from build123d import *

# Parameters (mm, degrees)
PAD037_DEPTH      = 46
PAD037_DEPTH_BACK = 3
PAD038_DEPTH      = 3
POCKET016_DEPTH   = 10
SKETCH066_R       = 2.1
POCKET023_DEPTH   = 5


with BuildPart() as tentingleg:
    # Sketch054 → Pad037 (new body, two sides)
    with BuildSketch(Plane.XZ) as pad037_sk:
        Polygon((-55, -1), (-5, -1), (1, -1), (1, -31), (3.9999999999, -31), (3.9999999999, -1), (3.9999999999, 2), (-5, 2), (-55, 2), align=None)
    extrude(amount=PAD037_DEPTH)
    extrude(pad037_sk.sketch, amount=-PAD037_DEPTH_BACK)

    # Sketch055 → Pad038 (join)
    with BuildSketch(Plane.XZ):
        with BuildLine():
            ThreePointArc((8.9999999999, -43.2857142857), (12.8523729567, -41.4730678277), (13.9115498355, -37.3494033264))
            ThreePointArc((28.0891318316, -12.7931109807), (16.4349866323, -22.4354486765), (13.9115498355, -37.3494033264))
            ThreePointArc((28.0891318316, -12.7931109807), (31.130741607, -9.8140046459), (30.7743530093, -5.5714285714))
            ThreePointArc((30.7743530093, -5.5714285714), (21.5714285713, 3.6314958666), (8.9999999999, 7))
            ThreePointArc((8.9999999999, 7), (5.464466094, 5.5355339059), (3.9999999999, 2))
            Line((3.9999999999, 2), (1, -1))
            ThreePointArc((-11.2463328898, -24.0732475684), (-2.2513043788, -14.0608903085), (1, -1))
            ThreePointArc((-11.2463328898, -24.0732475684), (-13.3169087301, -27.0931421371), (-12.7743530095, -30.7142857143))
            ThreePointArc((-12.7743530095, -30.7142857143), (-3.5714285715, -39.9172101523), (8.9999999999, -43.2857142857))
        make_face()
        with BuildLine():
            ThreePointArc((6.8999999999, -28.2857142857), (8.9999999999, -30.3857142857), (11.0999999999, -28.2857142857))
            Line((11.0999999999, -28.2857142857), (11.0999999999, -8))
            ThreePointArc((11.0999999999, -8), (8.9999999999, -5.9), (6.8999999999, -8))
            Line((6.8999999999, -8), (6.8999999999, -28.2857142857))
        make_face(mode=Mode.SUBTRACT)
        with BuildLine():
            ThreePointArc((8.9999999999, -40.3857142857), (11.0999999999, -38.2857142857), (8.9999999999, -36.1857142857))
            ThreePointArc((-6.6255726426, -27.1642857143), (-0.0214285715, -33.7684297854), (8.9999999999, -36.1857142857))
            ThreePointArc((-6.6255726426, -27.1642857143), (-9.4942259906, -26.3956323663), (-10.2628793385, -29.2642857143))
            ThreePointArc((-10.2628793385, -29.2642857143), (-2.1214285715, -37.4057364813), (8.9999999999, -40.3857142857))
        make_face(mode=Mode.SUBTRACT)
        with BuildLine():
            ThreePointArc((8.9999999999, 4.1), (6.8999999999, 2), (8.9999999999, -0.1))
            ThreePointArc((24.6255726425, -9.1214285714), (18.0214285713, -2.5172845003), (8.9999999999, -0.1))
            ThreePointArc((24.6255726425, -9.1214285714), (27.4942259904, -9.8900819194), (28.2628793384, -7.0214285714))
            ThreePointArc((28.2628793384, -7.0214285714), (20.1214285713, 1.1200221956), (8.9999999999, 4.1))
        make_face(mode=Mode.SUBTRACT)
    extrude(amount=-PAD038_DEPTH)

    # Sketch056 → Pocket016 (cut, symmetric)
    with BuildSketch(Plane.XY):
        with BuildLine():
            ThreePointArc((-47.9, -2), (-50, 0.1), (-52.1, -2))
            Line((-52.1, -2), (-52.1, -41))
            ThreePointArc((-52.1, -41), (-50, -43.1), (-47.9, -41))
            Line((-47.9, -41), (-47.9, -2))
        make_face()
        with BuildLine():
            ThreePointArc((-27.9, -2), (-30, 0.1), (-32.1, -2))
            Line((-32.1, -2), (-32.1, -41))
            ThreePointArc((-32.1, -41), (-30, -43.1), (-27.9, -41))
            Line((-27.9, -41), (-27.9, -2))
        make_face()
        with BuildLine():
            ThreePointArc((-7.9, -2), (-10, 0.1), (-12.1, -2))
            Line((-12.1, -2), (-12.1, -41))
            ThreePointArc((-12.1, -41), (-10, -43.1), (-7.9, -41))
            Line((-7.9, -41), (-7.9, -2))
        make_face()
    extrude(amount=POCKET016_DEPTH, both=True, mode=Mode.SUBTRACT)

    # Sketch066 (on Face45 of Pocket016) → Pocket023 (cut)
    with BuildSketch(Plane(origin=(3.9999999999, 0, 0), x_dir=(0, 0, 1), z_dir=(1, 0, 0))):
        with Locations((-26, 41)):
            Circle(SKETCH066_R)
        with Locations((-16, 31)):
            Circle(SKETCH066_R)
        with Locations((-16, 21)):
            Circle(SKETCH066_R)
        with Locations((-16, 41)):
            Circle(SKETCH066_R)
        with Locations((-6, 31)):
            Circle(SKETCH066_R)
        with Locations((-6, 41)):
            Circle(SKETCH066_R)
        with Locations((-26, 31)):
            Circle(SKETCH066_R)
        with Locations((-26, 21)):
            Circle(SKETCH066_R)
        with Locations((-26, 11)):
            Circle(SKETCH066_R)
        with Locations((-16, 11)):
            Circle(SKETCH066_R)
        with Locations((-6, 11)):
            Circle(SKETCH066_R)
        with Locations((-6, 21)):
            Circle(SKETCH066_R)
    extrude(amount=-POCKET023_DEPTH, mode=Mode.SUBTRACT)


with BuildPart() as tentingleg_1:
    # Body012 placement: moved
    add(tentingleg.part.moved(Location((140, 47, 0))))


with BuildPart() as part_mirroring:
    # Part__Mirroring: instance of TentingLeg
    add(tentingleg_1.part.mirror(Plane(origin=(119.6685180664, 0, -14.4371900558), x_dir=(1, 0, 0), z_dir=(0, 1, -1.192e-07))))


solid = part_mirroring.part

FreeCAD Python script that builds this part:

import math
import FreeCAD as App
import Part
import Sketcher

V = App.Vector
Q = App.Units.Quantity


def add_polygon(sketch, points):
    """Adds a closed chain of lines whose ends are joined by coincident constraints."""
    first, n = sketch.GeometryCount, len(points)
    for a, b in zip(points, points[1:] + points[:1]):
        sketch.addGeometry(Part.LineSegment(App.Vector(*a, 0), App.Vector(*b, 0)), False)
    for i in range(n):
        sketch.addConstraint(Sketcher.Constraint("Coincident", first + i, 2, first + (i + 1) % n, 1))

doc = App.newDocument("Part")
body = doc.addObject("PartDesign::Body", "Body")

sketch1 = body.newObject("Sketcher::SketchObject", "Sketch")
sketch1.AttachmentSupport = (doc.getObject("XZ_Plane"), [""])
sketch1.MapMode = "FlatFace"
add_polygon(sketch1, [(-55, -1), (1, -1), (1, -31), (4, -31), (4, 2), (-55, 2)])
sketch1.addConstraint([
    Sketcher.Constraint("Horizontal", 0),
    Sketcher.Constraint("Vertical", 1),
    Sketcher.Constraint("Horizontal", 2),
    Sketcher.Constraint("Vertical", 3),
    Sketcher.Constraint("Horizontal", 4),
    Sketcher.Constraint("Vertical", 5),
    Sketcher.Constraint("Equal", 2, 5),
    Sketcher.Constraint("DistanceX", 0, 1, 0, 2, 56.0),
    Sketcher.Constraint("DistanceX", 2, 1, 2, 2, 3.0),
    Sketcher.Constraint("DistanceY", 1, 2, 1, 1, 30.0),
    Sketcher.Constraint("DistanceX", -1, 1, 0, 2, 1.0),
    Sketcher.Constraint("DistanceY", 0, 2, -1, 1, 1.0),
])
pad1 = body.newObject("PartDesign::Pad", "Pad")
pad1.Profile = sketch1
pad1.Type = "TwoLengths"
pad1.Length = 46
pad1.Length2 = 3

sketch2 = body.newObject("Sketcher::SketchObject", "Sketch001")
sketch2.AttachmentSupport = (doc.getObject("XZ_Plane"), [""])
sketch2.MapMode = "FlatFace"
sketch2.addGeometry([
    Part.ArcOfCircle(Part.Circle(V(9, -38.3, 0), V(0, 0, 1), 5), math.radians(-90), math.radians(11)),
    Part.ArcOfCircle(Part.Circle(V(35.2, -33.3, 0), V(0, 0, 1), 21.7), math.radians(109), math.radians(191)),
    Part.ArcOfCircle(Part.Circle(V(26.4, -8.1, 0), V(0, 0, 1), 5), math.radians(-71), math.radians(30)),
    Part.ArcOfCircle(Part.Circle(V(9, -18.1, 0), V(0, 0, 1), 25.1), math.radians(30), math.radians(90)),
    Part.ArcOfCircle(Part.Circle(V(9, 2, 0), V(0, 0, 1), 5), math.radians(90), math.radians(180)),
    Part.LineSegment(V(4, 2, 0), V(1, -1, 0)),
    Part.ArcOfCircle(Part.Circle(V(-26.9, -1, 0), V(0, 0, 1), 27.9), math.radians(-56), math.radians(0)),
    Part.ArcOfCircle(Part.Circle(V(-8.4, -28.2, 0), V(0, 0, 1), 5), math.radians(124), math.radians(210)),
    Part.ArcOfCircle(Part.Circle(V(9, -18.1, 0), V(0, 0, 1), 25.1), math.radians(-150), math.radians(-90)),
    Part.ArcOfCircle(Part.Circle(V(9, -38.3, 0), V(0, 0, 1), 2.1), math.radians(-90), math.radians(90)),
    Part.ArcOfCircle(Part.Circle(V(9, -18.1, 0), V(0, 0, 1), 22.2), math.radians(-150), math.radians(-90)),
    Part.ArcOfCircle(Part.Circle(V(-8.4, -28.2, 0), V(0, 0, 1), 2.1), math.radians(30), math.radians(210)),
    Part.ArcOfCircle(Part.Circle(V(9, -18.1, 0), V(0, 0, 1), 18), math.radians(-150), math.radians(-90)),
    Part.ArcOfCircle(Part.Circle(V(9, -28.3, 0), V(0, 0, 1), 2.1), math.radians(180), math.radians(360)),
    Part.LineSegment(V(6.9, -28.3, 0), V(6.9, -8, 0)),
    Part.ArcOfCircle(Part.Circle(V(9, -8, 0), V(0, 0, 1), 2.1), math.radians(0), math.radians(180)),
    Part.LineSegment(V(11.1, -8, 0), V(11.1, -28.3, 0)),
    Part.ArcOfCircle(Part.Circle(V(9, 2, 0), V(0, 0, 1), 2.1), math.radians(90), math.radians(270)),
    Part.ArcOfCircle(Part.Circle(V(9, -18.1, 0), V(0, 0, 1), 22.2), math.radians(30), math.radians(90)),
    Part.ArcOfCircle(Part.Circle(V(26.4, -8.1, 0), V(0, 0, 1), 2.1), math.radians(-150), math.radians(30)),
    Part.ArcOfCircle(Part.Circle(V(9, -18.1, 0), V(0, 0, 1), 18), math.radians(30), math.radians(90)),
], False)
sketch2.addConstraint([
    Sketcher.Constraint("Tangent", 0, 2, 1, 2),
    Sketcher.Constraint("Tangent", 1, 1, 2, 1),
    Sketcher.Constraint("Tangent", 2, 2, 3, 1),
    Sketcher.Constraint("Tangent", 3, 2, 4, 1),
    Sketcher.Constraint("Coincident", 4, 2, 5, 1),
    Sketcher.Constraint("Coincident", 5, 2, 6, 2),
    Sketcher.Constraint("Tangent", 6, 1, 7, 1),
    Sketcher.Constraint("Tangent", 7, 2, 8, 1),
    Sketcher.Constraint("Tangent", 8, 2, 0, 1),
    Sketcher.Constraint("Tangent", 9, 1, 10, 2),
    Sketcher.Constraint("Tangent", 10, 1, 11, 2),
    Sketcher.Constraint("Tangent", 11, 1, 12, 1),
    Sketcher.Constraint("Tangent", 12, 2, 9, 2),
    Sketcher.Constraint("Tangent", 13, 1, 14, 1),
    Sketcher.Constraint("Tangent", 14, 2, 15, 2),
    Sketcher.Constraint("Tangent", 15, 1, 16, 1),
    Sketcher.Constraint("Tangent", 16, 2, 13, 2),
    Sketcher.Constraint("Tangent", 17, 1, 18, 2),
    Sketcher.Constraint("Tangent", 18, 1, 19, 2),
    Sketcher.Constraint("Tangent", 19, 1, 20, 1),
    Sketcher.Constraint("Tangent", 20, 2, 17, 2),
    Sketcher.Constraint("Vertical", 14),
    Sketcher.Constraint("Vertical", 16),
    Sketcher.Constraint("Coincident", 8, 3, 3, 3),
    Sketcher.Constraint("Coincident", 9, 3, 0, 3),
    Sketcher.Constraint("Coincident", 10, 3, 3, 3),
    Sketcher.Constraint("Coincident", 11, 3, 7, 3),
    Sketcher.Constraint("Coincident", 12, 3, 3, 3),
    Sketcher.Constraint("Coincident", 17, 3, 4, 3),
    Sketcher.Constraint("Coincident", 18, 3, 3, 3),
    Sketcher.Constraint("Coincident", 19, 3, 2, 3),
    Sketcher.Constraint("Coincident", 20, 3, 3, 3),
    Sketcher.Constraint("Equal", 0, 2),
    Sketcher.Constraint("Equal", 3, 8),
    Sketcher.Constraint("Equal", 11, 13),
    Sketcher.Constraint("Equal", 15, 17),
    Sketcher.Constraint("Horizontal", 17, 3, 4, 2),
    Sketcher.Constraint("Horizontal", 6, 3, 5, 2),
    Sketcher.Constraint("Vertical", 0, 3, 3, 3),
    Sketcher.Constraint("Vertical", 3, 3, 4, 3),
    Sketcher.Constraint("Vertical", 12, 3, 13, 3),
    Sketcher.Constraint("Radius", 0, 5.0),
    Sketcher.Constraint("Radius", 9, 2.1),
    Sketcher.Constraint("Angle", 5, Q("-135 deg")),
    Sketcher.Constraint("DistanceX", -1, 1, 0, 3, 9.0),
    Sketcher.Constraint("DistanceY", -1, 1, 4, 3, 2.0),
    Sketcher.Constraint("DistanceY", 6, 3, -1, 1, 1.0),
    Sketcher.Constraint("DistanceY", 15, 3, -1, 1, 8.0),
    Sketcher.Constraint("DistanceY", 0, 3, 1, 3, 5.0),
    Sketcher.Constraint("DistanceY", 0, 3, 13, 3, 10.0),
    Sketcher.Constraint("DistanceY", 2, 3, 2, 2, 2.5),
    Sketcher.Constraint("DistanceY", 7, 2, 7, 3, 2.5),
    Sketcher.Constraint("Radius", 1, 21.700531),
])
pad2 = body.newObject("PartDesign::Pad", "Pad001")
pad2.Profile = sketch2
pad2.Length = 3
pad2.Reversed = True

sketch3 = body.newObject("Sketcher::SketchObject", "Sketch002")
sketch3.AttachmentSupport = (doc.getObject("XY_Plane"), [""])
sketch3.MapMode = "FlatFace"
sketch3.addGeometry([
    Part.ArcOfCircle(Part.Circle(V(-50, -2, 0), V(0, 0, 1), 2.1), math.radians(0), math.radians(180)),
    Part.LineSegment(V(-52.1, -2, 0), V(-52.1, -41, 0)),
    Part.ArcOfCircle(Part.Circle(V(-50, -41, 0), V(0, 0, 1), 2.1), math.radians(180), math.radians(360)),
    Part.LineSegment(V(-47.9, -41, 0), V(-47.9, -2, 0)),
    Part.ArcOfCircle(Part.Circle(V(-30, -2, 0), V(0, 0, 1), 2.1), math.radians(0), math.radians(180)),
    Part.LineSegment(V(-32.1, -2, 0), V(-32.1, -41, 0)),
    Part.ArcOfCircle(Part.Circle(V(-30, -41, 0), V(0, 0, 1), 2.1), math.radians(180), math.radians(360)),
    Part.LineSegment(V(-27.9, -41, 0), V(-27.9, -2, 0)),
    Part.ArcOfCircle(Part.Circle(V(-10, -2, 0), V(0, 0, 1), 2.1), math.radians(0), math.radians(180)),
    Part.LineSegment(V(-12.1, -2, 0), V(-12.1, -41, 0)),
    Part.ArcOfCircle(Part.Circle(V(-10, -41, 0), V(0, 0, 1), 2.1), math.radians(180), math.radians(360)),
    Part.LineSegment(V(-7.9, -41, 0), V(-7.9, -2, 0)),
], False)
sketch3.addConstraint([
    Sketcher.Constraint("Tangent", 0, 2, 1, 1),
    Sketcher.Constraint("Tangent", 1, 2, 2, 1),
    Sketcher.Constraint("Tangent", 2, 2, 3, 1),
    Sketcher.Constraint("Tangent", 3, 2, 0, 1),
    Sketcher.Constraint("Tangent", 4, 2, 5, 1),
    Sketcher.Constraint("Tangent", 5, 2, 6, 1),
    Sketcher.Constraint("Tangent", 6, 2, 7, 1),
    Sketcher.Constraint("Tangent", 7, 2, 4, 1),
    Sketcher.Constraint("Tangent", 8, 2, 9, 1),
    Sketcher.Constraint("Tangent", 9, 2, 10, 1),
    Sketcher.Constraint("Tangent", 10, 2, 11, 1),
    Sketcher.Constraint("Tangent", 11, 2, 8, 1),
    Sketcher.Constraint("Vertical", 1),
    Sketcher.Constraint("Vertical", 3),
    Sketcher.Constraint("Vertical", 5),
    Sketcher.Constraint("Vertical", 7),
    Sketcher.Constraint("Vertical", 9),
    Sketcher.Constraint("Vertical", 11),
    Sketcher.Constraint("Equal", 2, 4),
    Sketcher.Constraint("Equal", 6, 8),
    Sketcher.Constraint("Horizontal", 0, 3, 4, 3),
    Sketcher.Constraint("Horizontal", 2, 3, 6, 3),
    Sketcher.Constraint("Horizontal", 4, 3, 8, 3),
    Sketcher.Constraint("Horizontal", 6, 3, 10, 3),
    Sketcher.Constraint("Radius", 0, 2.1),
    Sketcher.Constraint("DistanceY", 1, 2, 1, 1, 39.0),
    Sketcher.Constraint("DistanceX", 0, 3, -1, 1, 50.0),
    Sketcher.Constraint("DistanceY", 0, 3, -1, 1, 2.0),
    Sketcher.Constraint("DistanceX", 4, 3, -1, 1, 30.0),
    Sketcher.Constraint("DistanceX", 8, 3, -1, 1, 10.0),
])
pocket1 = body.newObject("PartDesign::Pocket", "Pocket")
pocket1.Profile = sketch3
pocket1.Length = 20
pocket1.Midplane = True

sketch4 = body.newObject("Sketcher::SketchObject", "Sketch003")
sketch4.AttachmentSupport = (doc.getObject("YZ_Plane"), [""])
sketch4.MapMode = "FlatFace"
sketch4.AttachmentOffset = App.Placement(V(0, 0, 4), App.Rotation())
sketch4.addGeometry([
    Part.Circle(V(-41, -26, 0), V(0, 0, 1), 2.1),
    Part.Circle(V(-31, -16, 0), V(0, 0, 1), 2.1),
    Part.Circle(V(-21, -16, 0), V(0, 0, 1), 2.1),
    Part.Circle(V(-41, -16, 0), V(0, 0, 1), 2.1),
    Part.Circle(V(-31, -6, 0), V(0, 0, 1), 2.1),
    Part.Circle(V(-41, -6, 0), V(0, 0, 1), 2.1),
    Part.Circle(V(-31, -26, 0), V(0, 0, 1), 2.1),
    Part.Circle(V(-21, -26, 0), V(0, 0, 1), 2.1),
    Part.Circle(V(-11, -26, 0), V(0, 0, 1), 2.1),
    Part.Circle(V(-11, -16, 0), V(0, 0, 1), 2.1),
    Part.Circle(V(-11, -6, 0), V(0, 0, 1), 2.1),
    Part.Circle(V(-21, -6, 0), V(0, 0, 1), 2.1),
], False)
sketch4.addConstraint([
    Sketcher.Constraint("Equal", 0, 1),
    Sketcher.Constraint("Equal", 1, 2),
    Sketcher.Constraint("Equal", 2, 3),
    Sketcher.Constraint("Equal", 3, 4),
    Sketcher.Constraint("Equal", 4, 5),
    Sketcher.Constraint("Equal", 5, 6),
    Sketcher.Constraint("Equal", 6, 7),
    Sketcher.Constraint("Equal", 7, 8),
    Sketcher.Constraint("Equal", 8, 9),
    Sketcher.Constraint("Equal", 9, 10),
    Sketcher.Constraint("Equal", 10, 11),
    Sketcher.Constraint("Horizontal", 1, 3, 2, 3),
    Sketcher.Constraint("Horizontal", 2, 3, 3, 3),
    Sketcher.Constraint("Horizontal", 4, 3, 5, 3),
    Sketcher.Constraint("Horizontal", 0, 3, 6, 3),
    Sketcher.Constraint("Horizontal", 6, 3, 7, 3),
    Sketcher.Constraint("Horizontal", 7, 3, 8, 3),
    Sketcher.Constraint("Horizontal", 3, 3, 9, 3),
    Sketcher.Constraint("Horizontal", 5, 3, 10, 3),
    Sketcher.Constraint("Horizontal", 10, 3, 11, 3),
    Sketcher.Constraint("Vertical", 0, 3, 3, 3),
    Sketcher.Constraint("Vertical", 1, 3, 4, 3),
    Sketcher.Constraint("Vertical", 3, 3, 5, 3),
    Sketcher.Constraint("Vertical", 4, 3, 6, 3),
    Sketcher.Constraint("Vertical", 2, 3, 7, 3),
    Sketcher.Constraint("Vertical", 8, 3, 9, 3),
    Sketcher.Constraint("Vertical", 9, 3, 10, 3),
    Sketcher.Constraint("Vertical", 7, 3, 11, 3),
    Sketcher.Constraint("Diameter", 0, 4.2),
    Sketcher.Constraint("DistanceX", 0, 3, -1, 1, 41.0),
    Sketcher.Constraint("DistanceY", 0, 3, -1, 1, 26.0),
    Sketcher.Constraint("DistanceX", 1, 3, -1, 1, 31.0),
    Sketcher.Constraint("DistanceY", 1, 3, -1, 1, 16.0),
    Sketcher.Constraint("DistanceX", 2, 3, -1, 1, 21.0),
    Sketcher.Constraint("DistanceY", 4, 3, -1, 1, 6.0),
    Sketcher.Constraint("DistanceX", 8, 3, -1, 1, 11.0),
])
pocket2 = body.newObject("PartDesign::Pocket", "Pocket001")
pocket2.Profile = sketch4
pocket2.Length = 5
body2 = doc.addObject("PartDesign::Body", "Body001")
doc.recompute()

body.Placement = App.Placement(V(140, 47, 0), App.Rotation(V(0, 0, 1), 0))
boolean = body2.newObject("PartDesign::Boolean", "Boolean")
boolean.Type = "Fuse"
boolean.addObjects([body])
body3 = doc.addObject("PartDesign::Body", "Body002")
doc.recompute()

mirroring = doc.addObject("Part::Mirroring", "Mirroring")
mirroring.Source = body2
mirroring.Base = V(119.668518, 0, -14.43719)
mirroring.Normal = V(0, 1, -0.000000119)
body3.BaseFeature = mirroring
doc.recompute()
body2.Visibility = False
mirroring.Visibility = False

doc.recompute()
